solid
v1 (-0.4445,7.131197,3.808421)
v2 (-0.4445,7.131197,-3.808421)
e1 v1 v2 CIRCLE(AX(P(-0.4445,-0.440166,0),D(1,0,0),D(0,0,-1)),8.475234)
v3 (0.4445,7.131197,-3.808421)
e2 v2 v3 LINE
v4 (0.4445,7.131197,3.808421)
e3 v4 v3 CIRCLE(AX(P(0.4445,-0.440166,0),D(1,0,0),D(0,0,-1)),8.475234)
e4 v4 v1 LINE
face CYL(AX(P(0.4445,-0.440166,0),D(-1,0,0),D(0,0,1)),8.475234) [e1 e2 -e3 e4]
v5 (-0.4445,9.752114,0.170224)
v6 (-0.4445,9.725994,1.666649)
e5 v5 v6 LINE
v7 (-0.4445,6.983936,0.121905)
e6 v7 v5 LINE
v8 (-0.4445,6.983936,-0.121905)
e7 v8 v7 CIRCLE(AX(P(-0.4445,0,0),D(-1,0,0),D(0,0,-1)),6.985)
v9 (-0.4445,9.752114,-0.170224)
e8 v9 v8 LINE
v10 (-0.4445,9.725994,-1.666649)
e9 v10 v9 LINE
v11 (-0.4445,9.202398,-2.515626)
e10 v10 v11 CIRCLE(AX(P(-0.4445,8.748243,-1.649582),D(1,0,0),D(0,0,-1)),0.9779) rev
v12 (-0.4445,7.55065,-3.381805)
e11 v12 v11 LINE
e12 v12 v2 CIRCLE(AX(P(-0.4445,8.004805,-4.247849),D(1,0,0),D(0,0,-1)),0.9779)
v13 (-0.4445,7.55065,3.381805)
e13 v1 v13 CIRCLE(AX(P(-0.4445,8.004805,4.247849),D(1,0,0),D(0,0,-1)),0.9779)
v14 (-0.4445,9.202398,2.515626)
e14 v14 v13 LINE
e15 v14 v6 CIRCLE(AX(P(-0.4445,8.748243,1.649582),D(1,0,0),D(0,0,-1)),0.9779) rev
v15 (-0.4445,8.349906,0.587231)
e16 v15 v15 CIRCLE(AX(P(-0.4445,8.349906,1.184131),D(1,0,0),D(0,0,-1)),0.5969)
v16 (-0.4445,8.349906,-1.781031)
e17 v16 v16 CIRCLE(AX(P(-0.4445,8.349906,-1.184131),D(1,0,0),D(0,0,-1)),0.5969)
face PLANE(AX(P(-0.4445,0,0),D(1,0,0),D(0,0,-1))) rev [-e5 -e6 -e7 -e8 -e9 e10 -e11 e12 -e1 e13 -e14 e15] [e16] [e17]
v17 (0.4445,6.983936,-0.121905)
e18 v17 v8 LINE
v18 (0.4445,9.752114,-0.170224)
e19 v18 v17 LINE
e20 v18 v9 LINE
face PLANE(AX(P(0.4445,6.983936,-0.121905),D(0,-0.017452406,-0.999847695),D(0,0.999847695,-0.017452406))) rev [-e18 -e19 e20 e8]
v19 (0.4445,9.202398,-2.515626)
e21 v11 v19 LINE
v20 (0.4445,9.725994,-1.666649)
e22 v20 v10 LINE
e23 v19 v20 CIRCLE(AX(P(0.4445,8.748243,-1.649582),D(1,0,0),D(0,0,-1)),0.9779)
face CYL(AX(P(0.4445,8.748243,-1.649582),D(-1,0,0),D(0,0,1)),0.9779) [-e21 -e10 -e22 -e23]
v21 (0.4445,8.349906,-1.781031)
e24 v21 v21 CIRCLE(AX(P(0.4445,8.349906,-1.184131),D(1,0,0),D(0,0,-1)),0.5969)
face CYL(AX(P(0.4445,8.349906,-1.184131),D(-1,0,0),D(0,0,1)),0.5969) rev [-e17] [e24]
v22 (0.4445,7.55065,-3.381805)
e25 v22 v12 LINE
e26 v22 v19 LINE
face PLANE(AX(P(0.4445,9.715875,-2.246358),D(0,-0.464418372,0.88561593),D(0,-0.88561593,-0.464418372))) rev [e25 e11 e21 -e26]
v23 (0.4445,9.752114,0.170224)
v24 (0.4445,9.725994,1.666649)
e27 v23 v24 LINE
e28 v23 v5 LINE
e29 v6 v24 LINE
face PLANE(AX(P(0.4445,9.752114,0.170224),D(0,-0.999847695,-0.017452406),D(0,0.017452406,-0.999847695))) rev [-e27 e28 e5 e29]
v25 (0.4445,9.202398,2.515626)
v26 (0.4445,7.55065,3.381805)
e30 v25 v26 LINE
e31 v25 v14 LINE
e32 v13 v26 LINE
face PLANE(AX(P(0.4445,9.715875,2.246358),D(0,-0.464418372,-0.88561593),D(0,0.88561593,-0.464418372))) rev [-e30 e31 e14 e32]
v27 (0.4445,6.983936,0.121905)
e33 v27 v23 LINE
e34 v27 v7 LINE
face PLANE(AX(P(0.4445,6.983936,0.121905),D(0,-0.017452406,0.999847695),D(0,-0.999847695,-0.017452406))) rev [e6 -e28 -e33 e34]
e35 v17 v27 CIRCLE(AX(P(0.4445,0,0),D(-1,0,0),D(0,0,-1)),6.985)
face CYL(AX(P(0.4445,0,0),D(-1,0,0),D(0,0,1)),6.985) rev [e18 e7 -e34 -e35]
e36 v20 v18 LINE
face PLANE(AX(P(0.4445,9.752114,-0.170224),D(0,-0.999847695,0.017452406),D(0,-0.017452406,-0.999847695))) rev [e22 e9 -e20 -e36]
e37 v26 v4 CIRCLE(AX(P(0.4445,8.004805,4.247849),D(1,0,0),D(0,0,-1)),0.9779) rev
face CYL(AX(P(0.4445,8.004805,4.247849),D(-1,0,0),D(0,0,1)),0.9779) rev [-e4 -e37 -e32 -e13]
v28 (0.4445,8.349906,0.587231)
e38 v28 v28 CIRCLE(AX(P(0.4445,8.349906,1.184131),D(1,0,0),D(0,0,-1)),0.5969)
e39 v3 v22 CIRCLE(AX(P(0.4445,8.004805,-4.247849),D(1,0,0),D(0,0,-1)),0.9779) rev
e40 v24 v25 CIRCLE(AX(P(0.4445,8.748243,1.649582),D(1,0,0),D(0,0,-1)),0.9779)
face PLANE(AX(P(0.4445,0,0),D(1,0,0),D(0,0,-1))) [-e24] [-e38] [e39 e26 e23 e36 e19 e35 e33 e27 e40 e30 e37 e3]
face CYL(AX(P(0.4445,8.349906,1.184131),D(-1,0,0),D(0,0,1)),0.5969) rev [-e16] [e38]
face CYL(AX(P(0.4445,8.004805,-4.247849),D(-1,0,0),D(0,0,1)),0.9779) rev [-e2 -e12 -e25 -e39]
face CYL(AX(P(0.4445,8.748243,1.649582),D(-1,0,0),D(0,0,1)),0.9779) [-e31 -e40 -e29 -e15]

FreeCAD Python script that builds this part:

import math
import FreeCAD as App
import Part
import Sketcher
from FreeCAD import Vector
Q = App.Units.Quantity


def edges_at(feature, points):
    """Names of the edges that pass closest to the given points."""
    edges = feature.Shape.Edges
    near = lambda p: min(range(len(edges)), key=lambda i: edges[i].distToShape(Part.Vertex(*p))[0])
    return sorted({f"Edge{near(p) + 1}" for p in points})

doc = App.newDocument("Part")
params = doc.addObject("Spreadsheet::Sheet", "Params")
for row, (alias, value) in enumerate([
    ("sketch1_diameter", "0.047 in"),
    ("sketch1_radius", "0.275 in"),
    ("sketch1_length", "0.109 in"),
    ("pad1_length", "0.035 in"),
    ("fillet_radius", "0.0385 in"),
], start=1):
    params.set(f"A{row}", alias)
    params.set(f"B{row}", "=" + value)
    params.setAlias(f"B{row}", alias)

body = doc.addObject("PartDesign::Body", "Body")

sketch1 = body.newObject("Sketcher::SketchObject", "Sketch")
sketch1.AttachmentSupport = (doc.getObject("YZ_Plane"), [""])
sketch1.MapMode = "FlatFace"
sketch1.addGeometry([
    Part.LineSegment(Vector(6.98, 0.12, 0), Vector(9.75, 0.17, 0)),
    Part.LineSegment(Vector(9.75, 0.17, 0), Vector(9.72, 2.25, 0)),
    Part.LineSegment(Vector(9.72, 2.25, 0), Vector(7.26, 3.53, 0)),
    Part.ArcOfCircle(Part.Circle(Vector(-0.44, 0, 0), Vector(0, 0, 1), 8.48), math.radians(25), math.radians(335)),
    Part.LineSegment(Vector(7.26, -3.53, 0), Vector(9.72, -2.25, 0)),
    Part.LineSegment(Vector(9.72, -2.25, 0), Vector(9.75, -0.17, 0)),
    Part.LineSegment(Vector(9.75, -0.17, 0), Vector(6.98, -0.12, 0)),
    Part.ArcOfCircle(Part.Circle(Vector(0, 0, 0), Vector(0, 0, 1), 6.99), math.radians(1), math.radians(359)),
    Part.Circle(Vector(8.35, 1.18, 0), Vector(0, 0, 1), 0.6),
    Part.Circle(Vector(8.35, -1.18, 0), Vector(0, 0, 1), 0.6),
], False)
sketch1.addConstraint([
    Sketcher.Constraint("Coincident", 0, 2, 1, 1),
    Sketcher.Constraint("Coincident", 1, 2, 2, 1),
    Sketcher.Constraint("Coincident", 2, 2, 3, 1),
    Sketcher.Constraint("Coincident", 3, 2, 4, 1),
    Sketcher.Constraint("Coincident", 4, 2, 5, 1),
    Sketcher.Constraint("Coincident", 5, 2, 6, 1),
    Sketcher.Constraint("Coincident", 6, 2, 7, 2),
    Sketcher.Constraint("Coincident", 7, 1, 0, 1),
    Sketcher.Constraint("Coincident", 7, 3, -1, 1),
    Sketcher.Constraint("Equal", 8, 9),
    Sketcher.Constraint("Symmetric", 8, 3, 9, 3, -1),
    Sketcher.Constraint("Symmetric", 2, 2, 3, 2, -1),
    Sketcher.Constraint("Symmetric", 1, 2, 4, 2, -1),
    Sketcher.Constraint("Symmetric", 0, 2, 5, 2, -1),
    Sketcher.Constraint("Perpendicular", 0, 1),
    Sketcher.Constraint("Perpendicular", 5, 6),
    Sketcher.Constraint("Equal", 0, 2),
    Sketcher.Constraint("Diameter", 8, Q("0.047 in")),
    Sketcher.Constraint("Angle", 0, Q("1 deg")),
    Sketcher.Constraint("Radius", 7, Q("0.275 in")),
    Sketcher.Constraint("Distance", 0, Q("0.109 in")),
    Sketcher.Constraint("Radius", 3, 8.475234),
    Sketcher.Constraint("DistanceY", 3, 2, 1, 2, Q("0.2275001 in")),
    Sketcher.Constraint("Distance", 1, 2.07645),
    Sketcher.Constraint("DistanceY", -1, 1, 8, 3, 1.184131),
    Sketcher.Constraint("DistanceX", -1, 1, 2, 2, 7.263959),
    Sketcher.Constraint("DistanceX", 3, 3, 8, 3, 8.790071),
])
sketch1.setExpression("Constraints[17]", "Params.sketch1_diameter")
sketch1.setExpression("Constraints[19]", "Params.sketch1_radius")
sketch1.setExpression("Constraints[20]", "Params.sketch1_length")
pad1 = body.newObject("PartDesign::Pad", "Pad")
pad1.Profile = sketch1
pad1.setExpression("Length", "Params.pad1_length")
pad1.Midplane = True
doc.recompute()

fillet = body.newObject("PartDesign::Fillet", "Fillet")
fillet.Base = (pad1, edges_at(pad1, [
    (0, 9.716, -2.246),
    (0, 7.264, -3.532),
    (0, 7.264, 3.532),
    (0, 9.716, 2.246),
]))
fillet.setExpression("Radius", "Params.fillet_radius")

doc.recompute()
